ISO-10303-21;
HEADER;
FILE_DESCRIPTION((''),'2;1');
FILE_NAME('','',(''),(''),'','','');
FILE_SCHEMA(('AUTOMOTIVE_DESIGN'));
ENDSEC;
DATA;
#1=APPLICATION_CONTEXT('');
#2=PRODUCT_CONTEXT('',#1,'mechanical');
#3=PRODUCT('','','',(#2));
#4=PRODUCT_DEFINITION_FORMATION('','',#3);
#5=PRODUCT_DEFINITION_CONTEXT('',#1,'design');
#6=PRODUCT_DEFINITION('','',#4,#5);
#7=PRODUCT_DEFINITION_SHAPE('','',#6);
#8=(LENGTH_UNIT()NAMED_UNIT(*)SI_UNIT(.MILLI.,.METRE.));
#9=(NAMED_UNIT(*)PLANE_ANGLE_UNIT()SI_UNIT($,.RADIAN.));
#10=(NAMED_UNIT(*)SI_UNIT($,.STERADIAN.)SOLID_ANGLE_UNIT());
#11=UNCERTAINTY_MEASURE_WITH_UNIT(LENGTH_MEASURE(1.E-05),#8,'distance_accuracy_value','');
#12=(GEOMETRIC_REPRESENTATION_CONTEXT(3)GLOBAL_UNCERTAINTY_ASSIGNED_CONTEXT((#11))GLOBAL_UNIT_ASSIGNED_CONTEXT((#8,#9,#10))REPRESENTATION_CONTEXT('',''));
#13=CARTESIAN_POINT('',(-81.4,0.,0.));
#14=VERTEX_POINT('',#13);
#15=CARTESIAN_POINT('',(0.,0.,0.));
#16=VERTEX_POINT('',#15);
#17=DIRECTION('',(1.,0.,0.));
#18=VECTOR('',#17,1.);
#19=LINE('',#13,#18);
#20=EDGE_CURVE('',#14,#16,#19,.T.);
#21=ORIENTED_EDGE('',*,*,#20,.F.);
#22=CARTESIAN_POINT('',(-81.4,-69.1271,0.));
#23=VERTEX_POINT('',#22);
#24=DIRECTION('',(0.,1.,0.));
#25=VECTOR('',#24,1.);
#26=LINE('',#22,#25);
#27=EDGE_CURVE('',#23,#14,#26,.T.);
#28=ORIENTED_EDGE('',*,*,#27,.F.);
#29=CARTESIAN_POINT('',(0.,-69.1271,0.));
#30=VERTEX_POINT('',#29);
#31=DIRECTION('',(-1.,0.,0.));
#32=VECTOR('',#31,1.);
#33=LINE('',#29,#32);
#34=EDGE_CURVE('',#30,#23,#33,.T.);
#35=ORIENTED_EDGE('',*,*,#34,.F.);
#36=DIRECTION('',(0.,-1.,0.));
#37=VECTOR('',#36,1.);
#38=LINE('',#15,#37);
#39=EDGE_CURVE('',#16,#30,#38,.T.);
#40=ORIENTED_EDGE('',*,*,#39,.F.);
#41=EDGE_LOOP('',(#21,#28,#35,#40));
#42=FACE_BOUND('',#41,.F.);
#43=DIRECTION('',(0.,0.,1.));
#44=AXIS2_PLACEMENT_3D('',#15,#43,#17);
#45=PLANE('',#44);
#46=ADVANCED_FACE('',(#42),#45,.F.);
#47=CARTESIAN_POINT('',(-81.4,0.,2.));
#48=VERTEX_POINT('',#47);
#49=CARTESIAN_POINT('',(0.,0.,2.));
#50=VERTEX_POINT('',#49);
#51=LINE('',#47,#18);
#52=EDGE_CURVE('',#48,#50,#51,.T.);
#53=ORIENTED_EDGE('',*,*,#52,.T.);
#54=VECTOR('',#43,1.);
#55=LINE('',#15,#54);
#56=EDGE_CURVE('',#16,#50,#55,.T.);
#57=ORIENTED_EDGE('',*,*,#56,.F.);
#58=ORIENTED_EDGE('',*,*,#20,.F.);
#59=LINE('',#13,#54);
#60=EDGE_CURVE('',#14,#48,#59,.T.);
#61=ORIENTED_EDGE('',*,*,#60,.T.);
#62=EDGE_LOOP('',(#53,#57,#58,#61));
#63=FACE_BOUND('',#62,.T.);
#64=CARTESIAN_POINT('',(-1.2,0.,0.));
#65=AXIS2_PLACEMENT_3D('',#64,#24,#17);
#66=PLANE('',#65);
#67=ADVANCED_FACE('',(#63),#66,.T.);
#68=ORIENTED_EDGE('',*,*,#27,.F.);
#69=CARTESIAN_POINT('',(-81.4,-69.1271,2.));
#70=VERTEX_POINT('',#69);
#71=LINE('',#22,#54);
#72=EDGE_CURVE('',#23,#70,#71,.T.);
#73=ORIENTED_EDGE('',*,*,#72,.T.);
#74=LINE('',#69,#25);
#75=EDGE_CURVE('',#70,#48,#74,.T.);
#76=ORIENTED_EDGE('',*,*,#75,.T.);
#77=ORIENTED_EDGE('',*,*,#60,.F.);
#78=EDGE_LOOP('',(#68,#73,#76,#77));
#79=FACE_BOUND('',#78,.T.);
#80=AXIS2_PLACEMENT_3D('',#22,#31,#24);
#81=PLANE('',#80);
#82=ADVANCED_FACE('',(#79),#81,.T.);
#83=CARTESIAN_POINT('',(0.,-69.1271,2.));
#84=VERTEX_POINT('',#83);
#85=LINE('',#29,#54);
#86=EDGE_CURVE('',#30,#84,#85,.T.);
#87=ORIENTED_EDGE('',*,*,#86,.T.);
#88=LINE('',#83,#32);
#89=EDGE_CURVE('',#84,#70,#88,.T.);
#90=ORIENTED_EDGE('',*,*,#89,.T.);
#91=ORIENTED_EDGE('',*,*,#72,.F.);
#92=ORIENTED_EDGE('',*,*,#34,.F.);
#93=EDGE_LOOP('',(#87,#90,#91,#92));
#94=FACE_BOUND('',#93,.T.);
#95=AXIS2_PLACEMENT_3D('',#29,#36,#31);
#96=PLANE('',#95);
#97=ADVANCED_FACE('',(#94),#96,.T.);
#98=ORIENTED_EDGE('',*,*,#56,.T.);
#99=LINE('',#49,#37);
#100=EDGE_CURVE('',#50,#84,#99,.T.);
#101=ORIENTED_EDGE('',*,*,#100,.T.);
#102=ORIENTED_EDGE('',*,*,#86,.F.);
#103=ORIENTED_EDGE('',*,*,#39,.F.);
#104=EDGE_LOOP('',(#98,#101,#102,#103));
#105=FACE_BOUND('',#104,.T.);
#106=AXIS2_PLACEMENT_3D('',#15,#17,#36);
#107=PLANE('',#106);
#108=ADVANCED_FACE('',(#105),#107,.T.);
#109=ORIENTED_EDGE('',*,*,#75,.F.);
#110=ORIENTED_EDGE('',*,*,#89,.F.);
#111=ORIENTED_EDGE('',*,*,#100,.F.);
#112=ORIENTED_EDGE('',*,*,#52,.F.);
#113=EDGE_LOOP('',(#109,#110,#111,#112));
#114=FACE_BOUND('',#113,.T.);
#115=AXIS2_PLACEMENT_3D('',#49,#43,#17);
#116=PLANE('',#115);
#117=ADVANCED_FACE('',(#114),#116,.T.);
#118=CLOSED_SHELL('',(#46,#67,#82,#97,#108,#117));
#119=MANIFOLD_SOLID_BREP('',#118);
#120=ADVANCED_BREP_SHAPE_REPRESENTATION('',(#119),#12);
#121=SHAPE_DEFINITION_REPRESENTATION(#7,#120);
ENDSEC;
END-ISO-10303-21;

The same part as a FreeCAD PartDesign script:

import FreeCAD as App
import Part
import Sketcher
Q = App.Units.Quantity

doc = App.newDocument("Part")
body = doc.addObject("PartDesign::Body", "Body")

# Sketch on XY plane
sketch1 = body.newObject("Sketcher::SketchObject", "Sketch")
sketch1.AttachmentSupport = (doc.getObject("XY_Plane"), [""])
sketch1.MapMode = "FlatFace"
sketch1.addGeometry([
    Part.LineSegment(App.Vector(0, 0, 0), App.Vector(-81, 0, 0)),
    Part.LineSegment(App.Vector(-81, 0, 0), App.Vector(-81, -69, 0)),
    Part.LineSegment(App.Vector(-81, -69, 0), App.Vector(0, -69, 0)),
    Part.LineSegment(App.Vector(0, -69, 0), App.Vector(0, 0, 0)),
], False)
sketch1.addConstraint([
    Sketcher.Constraint("Coincident", 0, 2, 1, 1),
    Sketcher.Constraint("Coincident", 1, 2, 2, 1),
    Sketcher.Constraint("Coincident", 2, 2, 3, 1),
    Sketcher.Constraint("Coincident", 3, 2, 0, 1),
    Sketcher.Constraint("Horizontal", 0),
    Sketcher.Constraint("Vertical", 1),
    Sketcher.Constraint("Horizontal", 2),
    Sketcher.Constraint("Vertical", 3),
    Sketcher.Constraint("Coincident", 3, 2, -1, 1),
    Sketcher.Constraint("DistanceX", 0, 2, 0, 1, Q("81.4 mm")),
    Sketcher.Constraint("DistanceY", 1, 2, 1, 1, Q("69.127 mm")),
])
pad1 = body.newObject("PartDesign::Pad", "Pad")
pad1.Profile = sketch1
pad1.Length = 2

doc.recompute()
